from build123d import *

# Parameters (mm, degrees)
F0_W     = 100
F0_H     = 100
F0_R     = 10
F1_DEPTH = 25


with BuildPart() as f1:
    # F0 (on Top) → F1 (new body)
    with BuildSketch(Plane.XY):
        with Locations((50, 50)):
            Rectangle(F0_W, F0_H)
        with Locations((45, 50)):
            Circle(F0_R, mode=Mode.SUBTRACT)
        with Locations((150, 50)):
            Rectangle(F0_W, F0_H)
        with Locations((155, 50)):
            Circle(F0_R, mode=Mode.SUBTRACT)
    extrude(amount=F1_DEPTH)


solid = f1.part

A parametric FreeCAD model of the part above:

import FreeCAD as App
import Part
import Sketcher

doc = App.newDocument("Part")
body = doc.addObject("PartDesign::Body", "Body")

# Sketch on XY plane
sketch1 = body.newObject("Sketcher::SketchObject", "Sketch")
sketch1.AttachmentSupport = (doc.getObject("XY_Plane"), [""])
sketch1.MapMode = "FlatFace"
sketch1.addGeometry(Part.LineSegment(App.Vector(0, 100, 0), App.Vector(0, 0, 0)), False)
sketch1.addGeometry(Part.LineSegment(App.Vector(0, 0, 0), App.Vector(200, 0, 0)), False)
sketch1.addGeometry(Part.LineSegment(App.Vector(200, 0, 0), App.Vector(200, 100, 0)), False)
sketch1.addGeometry(Part.LineSegment(App.Vector(200, 100, 0), App.Vector(0, 100, 0)), False)
sketch1.addGeometry(Part.Circle(App.Vector(45, 50, 0), App.Vector(0, 0, 1), 10), False)
sketch1.addGeometry(Part.Circle(App.Vector(155, 50, 0), App.Vector(0, 0, 1), 10), False)
sketch1.addConstraint(Sketcher.Constraint("Coincident", 0, 2, 1, 1))
sketch1.addConstraint(Sketcher.Constraint("Coincident", 1, 2, 2, 1))
sketch1.addConstraint(Sketcher.Constraint("Coincident", 2, 2, 3, 1))
sketch1.addConstraint(Sketcher.Constraint("Coincident", 3, 2, 0, 1))
sketch1.addConstraint(Sketcher.Constraint("Vertical", 0))
sketch1.addConstraint(Sketcher.Constraint("Horizontal", 1))
sketch1.addConstraint(Sketcher.Constraint("Vertical", 2))
sketch1.addConstraint(Sketcher.Constraint("Horizontal", 3))
sketch1.addConstraint(Sketcher.Constraint("Coincident", 0, 2, -1, 1))
sketch1.addConstraint(Sketcher.Constraint("Equal", 4, 5))
sketch1.addConstraint(Sketcher.Constraint("Horizontal", 4, 3, 5, 3))
sketch1.addConstraint(Sketcher.Constraint("Diameter", 4, 20.0))
sketch1.addConstraint(Sketcher.Constraint("DistanceX", 1, 1, 1, 2, 200.0))
sketch1.addConstraint(Sketcher.Constraint("DistanceY", 0, 2, 0, 1, 100.0))
sketch1.addConstraint(Sketcher.Constraint("DistanceX", -1, 1, 4, 3, 45.0))
sketch1.addConstraint(Sketcher.Constraint("DistanceY", -1, 1, 4, 3, 50.0))
sketch1.addConstraint(Sketcher.Constraint("DistanceX", -1, 1, 5, 3, 155.0))
pad1 = body.newObject("PartDesign::Pad", "Pad")
pad1.Profile = sketch1
pad1.Length = 25

doc.recompute()
